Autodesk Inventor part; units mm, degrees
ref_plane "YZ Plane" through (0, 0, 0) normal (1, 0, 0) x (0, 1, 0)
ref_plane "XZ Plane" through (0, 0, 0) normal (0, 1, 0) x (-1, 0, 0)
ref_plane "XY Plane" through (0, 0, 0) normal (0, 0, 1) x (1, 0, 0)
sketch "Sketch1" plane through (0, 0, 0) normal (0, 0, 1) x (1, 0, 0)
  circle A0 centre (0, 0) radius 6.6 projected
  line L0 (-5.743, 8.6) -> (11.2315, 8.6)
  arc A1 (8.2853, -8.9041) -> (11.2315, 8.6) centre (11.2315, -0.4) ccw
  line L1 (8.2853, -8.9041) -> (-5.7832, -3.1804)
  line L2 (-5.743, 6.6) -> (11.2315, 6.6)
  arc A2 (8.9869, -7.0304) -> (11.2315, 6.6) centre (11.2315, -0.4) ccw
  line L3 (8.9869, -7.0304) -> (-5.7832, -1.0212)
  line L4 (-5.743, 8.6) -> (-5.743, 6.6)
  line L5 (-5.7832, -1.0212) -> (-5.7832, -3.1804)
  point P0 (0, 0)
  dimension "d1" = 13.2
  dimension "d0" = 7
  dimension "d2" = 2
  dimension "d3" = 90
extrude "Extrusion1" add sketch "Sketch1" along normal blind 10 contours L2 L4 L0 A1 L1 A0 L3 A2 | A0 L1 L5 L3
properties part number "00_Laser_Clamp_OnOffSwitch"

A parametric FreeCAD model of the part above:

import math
import FreeCAD as App
import Part
import Sketcher
Q = App.Units.Quantity

doc = App.newDocument("Part")
body = doc.addObject("PartDesign::Body", "Body")

# Sketch on XY plane
sketch1 = doc.addObject("Sketcher::SketchObject", "Sketch")
body.addObject(sketch1)
sketch1.AttachmentSupport = (doc.XY_Plane, [""])
sketch1.MapMode = "FlatFace"
sketch1.addGeometry(Part.LineSegment(App.Vector(-5.7, 6.6, 0), App.Vector(11.2, 6.6, 0)), False)
sketch1.addGeometry(Part.ArcOfCircle(Part.Circle(App.Vector(11.2, -0.4, 0), App.Vector(0, 0, 1), 7), math.radians(-109), math.radians(90)), False)
sketch1.addGeometry(Part.LineSegment(App.Vector(9, -7, 0), App.Vector(-5.8, -1, 0)), False)
sketch1.addGeometry(Part.LineSegment(App.Vector(-5.8, -1, 0), App.Vector(-5.8, -3.2, 0)), False)
sketch1.addGeometry(Part.LineSegment(App.Vector(-5.8, -3.2, 0), App.Vector(8.3, -8.9, 0)), False)
sketch1.addGeometry(Part.ArcOfCircle(Part.Circle(App.Vector(11.2, -0.4, 0), App.Vector(0, 0, 1), 9), math.radians(-109), math.radians(90)), False)
sketch1.addGeometry(Part.LineSegment(App.Vector(11.2, 8.6, 0), App.Vector(-5.7, 8.6, 0)), False)
sketch1.addGeometry(Part.LineSegment(App.Vector(-5.7, 8.6, 0), App.Vector(-5.7, 6.6, 0)), False)
sketch1.addConstraint(Sketcher.Constraint("Tangent", 0, 2, 1, 2))
sketch1.addConstraint(Sketcher.Constraint("Coincident", 1, 1, 2, 1))
sketch1.addConstraint(Sketcher.Constraint("Coincident", 2, 2, 3, 1))
sketch1.addConstraint(Sketcher.Constraint("Coincident", 3, 2, 4, 1))
sketch1.addConstraint(Sketcher.Constraint("Coincident", 4, 2, 5, 1))
sketch1.addConstraint(Sketcher.Constraint("Tangent", 5, 2, 6, 1))
sketch1.addConstraint(Sketcher.Constraint("Coincident", 6, 2, 7, 1))
sketch1.addConstraint(Sketcher.Constraint("Coincident", 7, 2, 0, 1))
sketch1.addConstraint(Sketcher.Constraint("Horizontal", 0))
sketch1.addConstraint(Sketcher.Constraint("Vertical", 3))
sketch1.addConstraint(Sketcher.Constraint("Horizontal", 6))
sketch1.addConstraint(Sketcher.Constraint("Vertical", 7))
sketch1.addConstraint(Sketcher.Constraint("Coincident", 5, 3, 1, 3))
sketch1.addConstraint(Sketcher.Constraint("Parallel", 2, 4))
sketch1.addConstraint(Sketcher.Constraint("Radius", 1, 7.0))
sketch1.addConstraint(Sketcher.Constraint("DistanceY", 7, 2, 7, 1, 2.0))
sketch1.addConstraint(Sketcher.Constraint("DistanceY", 1, 3, -1, 1, 0.4))
sketch1.addConstraint(Sketcher.Constraint("Angle", 2, Q("157.861 deg")))
sketch1.addConstraint(Sketcher.Constraint("DistanceX", 2, 2, 1, 1, 14.77))
sketch1.addConstraint(Sketcher.Constraint("DistanceY", 1, 1, 3, 2, 3.85))
sketch1.addConstraint(Sketcher.Constraint("DistanceX", 0, 1, 0, 2, 16.9745))
sketch1.addConstraint(Sketcher.Constraint("DistanceX", -1, 1, 1, 1, 8.987))
sketch1.addConstraint(Sketcher.Constraint("DistanceY", 4, 2, -1, 1, 8.904))
pad1 = doc.addObject("PartDesign::Pad", "Pad")
body.addObject(pad1)
pad1.Profile = sketch1
pad1.Length = 10

doc.recompute()
